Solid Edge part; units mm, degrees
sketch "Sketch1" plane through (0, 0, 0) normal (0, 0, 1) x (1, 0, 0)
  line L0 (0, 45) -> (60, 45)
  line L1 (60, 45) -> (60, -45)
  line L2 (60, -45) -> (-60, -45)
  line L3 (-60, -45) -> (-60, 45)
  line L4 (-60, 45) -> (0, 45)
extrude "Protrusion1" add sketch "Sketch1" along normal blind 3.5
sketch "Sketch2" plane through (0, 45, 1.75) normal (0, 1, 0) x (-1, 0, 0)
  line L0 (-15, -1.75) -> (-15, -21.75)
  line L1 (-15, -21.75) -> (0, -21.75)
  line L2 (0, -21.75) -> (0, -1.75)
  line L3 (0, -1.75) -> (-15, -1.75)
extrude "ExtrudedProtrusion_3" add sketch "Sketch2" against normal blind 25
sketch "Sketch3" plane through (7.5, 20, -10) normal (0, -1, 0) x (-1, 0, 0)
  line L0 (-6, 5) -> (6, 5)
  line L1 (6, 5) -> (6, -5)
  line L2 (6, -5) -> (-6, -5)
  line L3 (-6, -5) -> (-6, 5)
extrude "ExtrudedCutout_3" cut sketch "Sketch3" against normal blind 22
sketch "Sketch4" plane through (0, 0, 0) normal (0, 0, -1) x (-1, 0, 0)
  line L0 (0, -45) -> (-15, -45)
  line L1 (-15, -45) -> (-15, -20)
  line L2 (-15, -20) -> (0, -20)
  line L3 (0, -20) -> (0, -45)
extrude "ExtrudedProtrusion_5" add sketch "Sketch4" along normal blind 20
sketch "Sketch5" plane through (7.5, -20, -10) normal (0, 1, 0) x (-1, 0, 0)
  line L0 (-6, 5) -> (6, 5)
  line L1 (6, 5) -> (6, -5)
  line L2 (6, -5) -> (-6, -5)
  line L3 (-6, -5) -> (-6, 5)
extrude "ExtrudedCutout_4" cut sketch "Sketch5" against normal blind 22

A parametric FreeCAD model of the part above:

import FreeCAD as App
import Part
import Sketcher

doc = App.newDocument("Part")
params = doc.addObject("Spreadsheet::Sheet", "Params")
for row, (alias, value) in enumerate([
    ("sketch1_width", "120 mm"),
    ("sketch1_height", "90 mm"),
    ("pad1_length", "3.5 mm"),
    ("sketch2_width", "15 mm"),
    ("sketch2_height", "20 mm"),
    ("pad2_length", "25 mm"),
    ("sketch3_width", "12 mm"),
    ("sketch3_height", "10 mm"),
    ("pocket1_length", "22 mm"),
    ("sketch4_width", "15 mm"),
    ("sketch4_height", "25 mm"),
    ("pad3_length", "20 mm"),
    ("sketch5_width", "12 mm"),
    ("sketch5_height", "10 mm"),
    ("pocket2_length", "22 mm"),
], start=1):
    params.set(f"A{row}", alias)
    params.set(f"B{row}", "=" + value)
    params.setAlias(f"B{row}", alias)

body = doc.addObject("PartDesign::Body", "Body")

sketch1 = doc.addObject("Sketcher::SketchObject", "Sketch")
body.addObject(sketch1)
sketch1.AttachmentSupport = (doc.XY_Plane, [""])
sketch1.MapMode = "FlatFace"
sketch1.addGeometry([
    Part.LineSegment(App.Vector(60, 45, 0), App.Vector(-60, 45, 0)),
    Part.LineSegment(App.Vector(-60, 45, 0), App.Vector(-60, -45, 0)),
    Part.LineSegment(App.Vector(-60, -45, 0), App.Vector(60, -45, 0)),
    Part.LineSegment(App.Vector(60, -45, 0), App.Vector(60, 45, 0)),
], False)
sketch1.addConstraint([
    Sketcher.Constraint("Coincident", 0, 2, 1, 1),
    Sketcher.Constraint("Coincident", 1, 2, 2, 1),
    Sketcher.Constraint("Coincident", 2, 2, 3, 1),
    Sketcher.Constraint("Coincident", 3, 2, 0, 1),
    Sketcher.Constraint("Horizontal", 0),
    Sketcher.Constraint("Vertical", 1),
    Sketcher.Constraint("Horizontal", 2),
    Sketcher.Constraint("Vertical", 3),
    Sketcher.Constraint("Symmetric", 0, 2, 2, 2, -1, 1),
    Sketcher.Constraint("DistanceX", 0, 2, 0, 1, 120.0),
    Sketcher.Constraint("DistanceY", 1, 2, 1, 1, 90.0),
])
sketch1.setExpression("Constraints[9]", "Params.sketch1_width")
sketch1.setExpression("Constraints[10]", "Params.sketch1_height")
pad1 = doc.addObject("PartDesign::Pad", "Pad")
body.addObject(pad1)
pad1.Profile = sketch1
pad1.setExpression("Length", "Params.pad1_length")

sketch2 = doc.addObject("Sketcher::SketchObject", "Sketch001")
body.addObject(sketch2)
sketch2.AttachmentSupport = (doc.XZ_Plane, [""])
sketch2.MapMode = "FlatFace"
sketch2.AttachmentOffset = App.Placement(App.Vector(0, 0, -45), App.Rotation())
sketch2.addGeometry([
    Part.LineSegment(App.Vector(0, 0, 0), App.Vector(15, 0, 0)),
    Part.LineSegment(App.Vector(15, 0, 0), App.Vector(15, -20, 0)),
    Part.LineSegment(App.Vector(15, -20, 0), App.Vector(0, -20, 0)),
    Part.LineSegment(App.Vector(0, -20, 0), App.Vector(0, 0, 0)),
], False)
sketch2.addConstraint([
    Sketcher.Constraint("Coincident", 0, 2, 1, 1),
    Sketcher.Constraint("Coincident", 1, 2, 2, 1),
    Sketcher.Constraint("Coincident", 2, 2, 3, 1),
    Sketcher.Constraint("Coincident", 3, 2, 0, 1),
    Sketcher.Constraint("Horizontal", 0),
    Sketcher.Constraint("Vertical", 1),
    Sketcher.Constraint("Horizontal", 2),
    Sketcher.Constraint("Vertical", 3),
    Sketcher.Constraint("Coincident", 3, 2, -1, 1),
    Sketcher.Constraint("DistanceX", 0, 1, 0, 2, 15.0),
    Sketcher.Constraint("DistanceY", 1, 2, 1, 1, 20.0),
])
sketch2.setExpression("Constraints[9]", "Params.sketch2_width")
sketch2.setExpression("Constraints[10]", "Params.sketch2_height")
pad2 = doc.addObject("PartDesign::Pad", "Pad001")
body.addObject(pad2)
pad2.Profile = sketch2
pad2.setExpression("Length", "Params.pad2_length")

sketch3 = doc.addObject("Sketcher::SketchObject", "Sketch002")
body.addObject(sketch3)
sketch3.AttachmentSupport = (doc.XZ_Plane, [""])
sketch3.MapMode = "FlatFace"
sketch3.AttachmentOffset = App.Placement(App.Vector(0, 0, -20), App.Rotation())
sketch3.addGeometry([
    Part.LineSegment(App.Vector(1.5, -15, 0), App.Vector(13.5, -15, 0)),
    Part.LineSegment(App.Vector(13.5, -15, 0), App.Vector(13.5, -5, 0)),
    Part.LineSegment(App.Vector(13.5, -5, 0), App.Vector(1.5, -5, 0)),
    Part.LineSegment(App.Vector(1.5, -5, 0), App.Vector(1.5, -15, 0)),
], False)
sketch3.addConstraint([
    Sketcher.Constraint("Coincident", 0, 2, 1, 1),
    Sketcher.Constraint("Coincident", 1, 2, 2, 1),
    Sketcher.Constraint("Coincident", 2, 2, 3, 1),
    Sketcher.Constraint("Coincident", 3, 2, 0, 1),
    Sketcher.Constraint("Horizontal", 0),
    Sketcher.Constraint("Vertical", 1),
    Sketcher.Constraint("Horizontal", 2),
    Sketcher.Constraint("Vertical", 3),
    Sketcher.Constraint("DistanceX", 0, 1, 0, 2, 12.0),
    Sketcher.Constraint("DistanceY", 1, 1, 1, 2, 10.0),
    Sketcher.Constraint("DistanceY", 0, 2, -1, 1, 15.0),
    Sketcher.Constraint("DistanceX", -1, 1, 0, 2, 13.5),
])
sketch3.setExpression("Constraints[8]", "Params.sketch3_width")
sketch3.setExpression("Constraints[9]", "Params.sketch3_height")
pocket1 = doc.addObject("PartDesign::Pocket", "Pocket")
body.addObject(pocket1)
pocket1.Profile = sketch3
pocket1.setExpression("Length", "Params.pocket1_length")

sketch4 = doc.addObject("Sketcher::SketchObject", "Sketch003")
body.addObject(sketch4)
sketch4.AttachmentSupport = (doc.XY_Plane, [""])
sketch4.MapMode = "FlatFace"
sketch4.addGeometry([
    Part.LineSegment(App.Vector(15, -45, 0), App.Vector(0, -45, 0)),
    Part.LineSegment(App.Vector(0, -45, 0), App.Vector(0, -20, 0)),
    Part.LineSegment(App.Vector(0, -20, 0), App.Vector(15, -20, 0)),
    Part.LineSegment(App.Vector(15, -20, 0), App.Vector(15, -45, 0)),
], False)
sketch4.addConstraint([
    Sketcher.Constraint("Coincident", 0, 2, 1, 1),
    Sketcher.Constraint("Coincident", 1, 2, 2, 1),
    Sketcher.Constraint("Coincident", 2, 2, 3, 1),
    Sketcher.Constraint("Coincident", 3, 2, 0, 1),
    Sketcher.Constraint("Horizontal", 0),
    Sketcher.Constraint("Vertical", 1),
    Sketcher.Constraint("Horizontal", 2),
    Sketcher.Constraint("Vertical", 3),
    Sketcher.Constraint("PointOnObject", 0, 2, -2),
    Sketcher.Constraint("DistanceX", 0, 2, 0, 1, 15.0),
    Sketcher.Constraint("DistanceY", 1, 1, 1, 2, 25.0),
    Sketcher.Constraint("DistanceY", 0, 2, -1, 1, 45.0),
])
sketch4.setExpression("Constraints[9]", "Params.sketch4_width")
sketch4.setExpression("Constraints[10]", "Params.sketch4_height")
pad3 = doc.addObject("PartDesign::Pad", "Pad002")
body.addObject(pad3)
pad3.Profile = sketch4
pad3.setExpression("Length", "Params.pad3_length")
pad3.Reversed = True

sketch5 = doc.addObject("Sketcher::SketchObject", "Sketch004")
body.addObject(sketch5)
sketch5.AttachmentSupport = (doc.XZ_Plane, [""])
sketch5.MapMode = "FlatFace"
sketch5.AttachmentOffset = App.Placement(App.Vector(0, 0, 20), App.Rotation())
sketch5.addGeometry([
    Part.LineSegment(App.Vector(1.5, -5, 0), App.Vector(13.5, -5, 0)),
    Part.LineSegment(App.Vector(13.5, -5, 0), App.Vector(13.5, -15, 0)),
    Part.LineSegment(App.Vector(13.5, -15, 0), App.Vector(1.5, -15, 0)),
    Part.LineSegment(App.Vector(1.5, -15, 0), App.Vector(1.5, -5, 0)),
], False)
sketch5.addConstraint([
    Sketcher.Constraint("Coincident", 0, 2, 1, 1),
    Sketcher.Constraint("Coincident", 1, 2, 2, 1),
    Sketcher.Constraint("Coincident", 2, 2, 3, 1),
    Sketcher.Constraint("Coincident", 3, 2, 0, 1),
    Sketcher.Constraint("Horizontal", 0),
    Sketcher.Constraint("Vertical", 1),
    Sketcher.Constraint("Horizontal", 2),
    Sketcher.Constraint("Vertical", 3),
    Sketcher.Constraint("DistanceX", 0, 1, 0, 2, 12.0),
    Sketcher.Constraint("DistanceY", 1, 2, 1, 1, 10.0),
    Sketcher.Constraint("DistanceY", 0, 2, -1, 1, 5.0),
    Sketcher.Constraint("DistanceX", -1, 1, 0, 2, 13.5),
])
sketch5.setExpression("Constraints[8]", "Params.sketch5_width")
sketch5.setExpression("Constraints[9]", "Params.sketch5_height")
pocket2 = doc.addObject("PartDesign::Pocket", "Pocket001")
body.addObject(pocket2)
pocket2.Profile = sketch5
pocket2.setExpression("Length", "Params.pocket2_length")
pocket2.Reversed = True

doc.recompute()
